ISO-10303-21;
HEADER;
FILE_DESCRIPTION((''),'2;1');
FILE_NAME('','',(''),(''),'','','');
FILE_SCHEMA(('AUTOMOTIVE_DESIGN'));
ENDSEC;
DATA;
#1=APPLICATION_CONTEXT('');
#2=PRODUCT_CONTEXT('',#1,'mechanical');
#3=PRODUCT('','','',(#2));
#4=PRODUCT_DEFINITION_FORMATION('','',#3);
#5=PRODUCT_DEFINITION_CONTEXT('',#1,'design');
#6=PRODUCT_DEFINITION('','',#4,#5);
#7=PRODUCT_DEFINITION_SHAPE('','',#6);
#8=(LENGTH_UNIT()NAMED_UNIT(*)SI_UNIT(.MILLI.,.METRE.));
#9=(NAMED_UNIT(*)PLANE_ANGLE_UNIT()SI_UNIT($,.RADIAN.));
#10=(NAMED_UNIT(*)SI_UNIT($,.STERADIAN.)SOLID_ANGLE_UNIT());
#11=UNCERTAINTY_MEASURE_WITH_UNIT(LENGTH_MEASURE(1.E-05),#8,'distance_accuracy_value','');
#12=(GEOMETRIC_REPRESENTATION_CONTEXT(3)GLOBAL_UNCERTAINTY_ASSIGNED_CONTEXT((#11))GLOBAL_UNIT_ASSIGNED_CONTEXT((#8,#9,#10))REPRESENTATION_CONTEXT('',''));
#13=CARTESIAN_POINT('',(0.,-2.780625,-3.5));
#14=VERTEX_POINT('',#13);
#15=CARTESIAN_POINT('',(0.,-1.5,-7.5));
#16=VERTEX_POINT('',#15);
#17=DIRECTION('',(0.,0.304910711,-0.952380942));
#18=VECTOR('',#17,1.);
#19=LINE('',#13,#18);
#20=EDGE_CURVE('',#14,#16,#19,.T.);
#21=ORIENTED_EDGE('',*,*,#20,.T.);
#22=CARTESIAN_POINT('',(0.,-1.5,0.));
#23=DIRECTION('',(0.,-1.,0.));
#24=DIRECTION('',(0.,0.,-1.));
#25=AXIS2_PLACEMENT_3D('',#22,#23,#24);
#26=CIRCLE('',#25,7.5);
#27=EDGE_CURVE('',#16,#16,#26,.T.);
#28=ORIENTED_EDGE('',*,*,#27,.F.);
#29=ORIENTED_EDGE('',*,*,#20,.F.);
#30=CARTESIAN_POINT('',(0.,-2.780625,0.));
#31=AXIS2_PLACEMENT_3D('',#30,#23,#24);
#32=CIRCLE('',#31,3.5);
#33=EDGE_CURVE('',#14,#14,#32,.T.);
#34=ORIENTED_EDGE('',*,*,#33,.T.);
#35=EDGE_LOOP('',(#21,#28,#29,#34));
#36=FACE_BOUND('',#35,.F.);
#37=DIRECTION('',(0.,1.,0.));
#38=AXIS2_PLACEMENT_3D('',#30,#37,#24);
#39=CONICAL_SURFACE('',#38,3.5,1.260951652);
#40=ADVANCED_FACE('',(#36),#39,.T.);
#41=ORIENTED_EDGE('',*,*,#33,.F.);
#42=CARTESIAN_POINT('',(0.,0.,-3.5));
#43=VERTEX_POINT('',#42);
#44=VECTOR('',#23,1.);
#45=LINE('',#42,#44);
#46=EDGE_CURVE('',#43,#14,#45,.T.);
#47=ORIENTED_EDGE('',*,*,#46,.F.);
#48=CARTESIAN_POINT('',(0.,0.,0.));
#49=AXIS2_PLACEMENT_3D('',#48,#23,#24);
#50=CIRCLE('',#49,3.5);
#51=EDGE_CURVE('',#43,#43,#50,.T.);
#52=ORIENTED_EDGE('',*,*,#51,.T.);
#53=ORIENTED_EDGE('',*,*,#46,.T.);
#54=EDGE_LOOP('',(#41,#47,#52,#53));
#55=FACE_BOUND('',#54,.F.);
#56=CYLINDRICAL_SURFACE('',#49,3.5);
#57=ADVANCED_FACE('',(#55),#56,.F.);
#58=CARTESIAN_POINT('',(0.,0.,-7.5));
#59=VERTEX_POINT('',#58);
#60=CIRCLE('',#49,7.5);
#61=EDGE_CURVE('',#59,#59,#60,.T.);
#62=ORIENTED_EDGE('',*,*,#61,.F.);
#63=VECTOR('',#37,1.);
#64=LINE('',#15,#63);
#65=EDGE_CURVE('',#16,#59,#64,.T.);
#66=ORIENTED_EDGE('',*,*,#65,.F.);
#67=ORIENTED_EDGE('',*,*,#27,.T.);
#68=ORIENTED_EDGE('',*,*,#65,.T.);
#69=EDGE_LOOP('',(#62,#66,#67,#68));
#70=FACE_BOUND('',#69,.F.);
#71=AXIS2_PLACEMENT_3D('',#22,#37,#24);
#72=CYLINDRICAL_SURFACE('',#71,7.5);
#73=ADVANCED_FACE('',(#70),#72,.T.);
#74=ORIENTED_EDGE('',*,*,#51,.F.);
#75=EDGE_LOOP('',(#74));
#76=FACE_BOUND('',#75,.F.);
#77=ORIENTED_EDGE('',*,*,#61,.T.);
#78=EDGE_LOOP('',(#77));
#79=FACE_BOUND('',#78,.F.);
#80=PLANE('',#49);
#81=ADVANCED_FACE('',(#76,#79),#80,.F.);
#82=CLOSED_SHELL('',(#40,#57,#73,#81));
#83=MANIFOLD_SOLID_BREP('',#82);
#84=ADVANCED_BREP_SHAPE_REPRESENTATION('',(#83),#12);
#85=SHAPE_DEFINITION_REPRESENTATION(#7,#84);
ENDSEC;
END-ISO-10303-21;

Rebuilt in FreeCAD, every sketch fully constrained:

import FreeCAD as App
import Part
import Sketcher

V = App.Vector

doc = App.newDocument("Part")
body = doc.addObject("PartDesign::Body", "Body")

# Sketch on YZ plane
sketch1 = body.newObject("Sketcher::SketchObject", "Sketch")
sketch1.AttachmentSupport = (doc.getObject("YZ_Plane"), [""])
sketch1.MapMode = "FlatFace"
sketch1.addGeometry([
    Part.LineSegment(V(0, -7.5, 0), V(0, -3.5, 0)),
    Part.LineSegment(V(0, -3.5, 0), V(-2.8, -3.5, 0)),
    Part.LineSegment(V(-2.8, -3.5, 0), V(-1.5, -7.5, 0)),
    Part.LineSegment(V(-1.5, -7.5, 0), V(0, -7.5, 0)),
], False)
sketch1.addConstraint([
    Sketcher.Constraint("Coincident", 0, 2, 1, 1),
    Sketcher.Constraint("Coincident", 1, 2, 2, 1),
    Sketcher.Constraint("Coincident", 2, 2, 3, 1),
    Sketcher.Constraint("Coincident", 3, 2, 0, 1),
    Sketcher.Constraint("Vertical", 0),
    Sketcher.Constraint("Horizontal", 1),
    Sketcher.Constraint("Horizontal", 3),
    Sketcher.Constraint("PointOnObject", 0, 2, -2),
    Sketcher.Constraint("DistanceY", 0, 1, 0, 2, 4.0),
    Sketcher.Constraint("DistanceX", 3, 1, 3, 2, 1.5),
    Sketcher.Constraint("Distance", 2, 4.2),
    Sketcher.Constraint("DistanceY", 0, 2, -1, 1, 3.5),
])
revolution = body.newObject("PartDesign::Revolution", "Revolution")
revolution.Profile = sketch1
revolution.ReferenceAxis = (sketch1, ["H_Axis"])
revolution.Angle = 360

doc.recompute()
